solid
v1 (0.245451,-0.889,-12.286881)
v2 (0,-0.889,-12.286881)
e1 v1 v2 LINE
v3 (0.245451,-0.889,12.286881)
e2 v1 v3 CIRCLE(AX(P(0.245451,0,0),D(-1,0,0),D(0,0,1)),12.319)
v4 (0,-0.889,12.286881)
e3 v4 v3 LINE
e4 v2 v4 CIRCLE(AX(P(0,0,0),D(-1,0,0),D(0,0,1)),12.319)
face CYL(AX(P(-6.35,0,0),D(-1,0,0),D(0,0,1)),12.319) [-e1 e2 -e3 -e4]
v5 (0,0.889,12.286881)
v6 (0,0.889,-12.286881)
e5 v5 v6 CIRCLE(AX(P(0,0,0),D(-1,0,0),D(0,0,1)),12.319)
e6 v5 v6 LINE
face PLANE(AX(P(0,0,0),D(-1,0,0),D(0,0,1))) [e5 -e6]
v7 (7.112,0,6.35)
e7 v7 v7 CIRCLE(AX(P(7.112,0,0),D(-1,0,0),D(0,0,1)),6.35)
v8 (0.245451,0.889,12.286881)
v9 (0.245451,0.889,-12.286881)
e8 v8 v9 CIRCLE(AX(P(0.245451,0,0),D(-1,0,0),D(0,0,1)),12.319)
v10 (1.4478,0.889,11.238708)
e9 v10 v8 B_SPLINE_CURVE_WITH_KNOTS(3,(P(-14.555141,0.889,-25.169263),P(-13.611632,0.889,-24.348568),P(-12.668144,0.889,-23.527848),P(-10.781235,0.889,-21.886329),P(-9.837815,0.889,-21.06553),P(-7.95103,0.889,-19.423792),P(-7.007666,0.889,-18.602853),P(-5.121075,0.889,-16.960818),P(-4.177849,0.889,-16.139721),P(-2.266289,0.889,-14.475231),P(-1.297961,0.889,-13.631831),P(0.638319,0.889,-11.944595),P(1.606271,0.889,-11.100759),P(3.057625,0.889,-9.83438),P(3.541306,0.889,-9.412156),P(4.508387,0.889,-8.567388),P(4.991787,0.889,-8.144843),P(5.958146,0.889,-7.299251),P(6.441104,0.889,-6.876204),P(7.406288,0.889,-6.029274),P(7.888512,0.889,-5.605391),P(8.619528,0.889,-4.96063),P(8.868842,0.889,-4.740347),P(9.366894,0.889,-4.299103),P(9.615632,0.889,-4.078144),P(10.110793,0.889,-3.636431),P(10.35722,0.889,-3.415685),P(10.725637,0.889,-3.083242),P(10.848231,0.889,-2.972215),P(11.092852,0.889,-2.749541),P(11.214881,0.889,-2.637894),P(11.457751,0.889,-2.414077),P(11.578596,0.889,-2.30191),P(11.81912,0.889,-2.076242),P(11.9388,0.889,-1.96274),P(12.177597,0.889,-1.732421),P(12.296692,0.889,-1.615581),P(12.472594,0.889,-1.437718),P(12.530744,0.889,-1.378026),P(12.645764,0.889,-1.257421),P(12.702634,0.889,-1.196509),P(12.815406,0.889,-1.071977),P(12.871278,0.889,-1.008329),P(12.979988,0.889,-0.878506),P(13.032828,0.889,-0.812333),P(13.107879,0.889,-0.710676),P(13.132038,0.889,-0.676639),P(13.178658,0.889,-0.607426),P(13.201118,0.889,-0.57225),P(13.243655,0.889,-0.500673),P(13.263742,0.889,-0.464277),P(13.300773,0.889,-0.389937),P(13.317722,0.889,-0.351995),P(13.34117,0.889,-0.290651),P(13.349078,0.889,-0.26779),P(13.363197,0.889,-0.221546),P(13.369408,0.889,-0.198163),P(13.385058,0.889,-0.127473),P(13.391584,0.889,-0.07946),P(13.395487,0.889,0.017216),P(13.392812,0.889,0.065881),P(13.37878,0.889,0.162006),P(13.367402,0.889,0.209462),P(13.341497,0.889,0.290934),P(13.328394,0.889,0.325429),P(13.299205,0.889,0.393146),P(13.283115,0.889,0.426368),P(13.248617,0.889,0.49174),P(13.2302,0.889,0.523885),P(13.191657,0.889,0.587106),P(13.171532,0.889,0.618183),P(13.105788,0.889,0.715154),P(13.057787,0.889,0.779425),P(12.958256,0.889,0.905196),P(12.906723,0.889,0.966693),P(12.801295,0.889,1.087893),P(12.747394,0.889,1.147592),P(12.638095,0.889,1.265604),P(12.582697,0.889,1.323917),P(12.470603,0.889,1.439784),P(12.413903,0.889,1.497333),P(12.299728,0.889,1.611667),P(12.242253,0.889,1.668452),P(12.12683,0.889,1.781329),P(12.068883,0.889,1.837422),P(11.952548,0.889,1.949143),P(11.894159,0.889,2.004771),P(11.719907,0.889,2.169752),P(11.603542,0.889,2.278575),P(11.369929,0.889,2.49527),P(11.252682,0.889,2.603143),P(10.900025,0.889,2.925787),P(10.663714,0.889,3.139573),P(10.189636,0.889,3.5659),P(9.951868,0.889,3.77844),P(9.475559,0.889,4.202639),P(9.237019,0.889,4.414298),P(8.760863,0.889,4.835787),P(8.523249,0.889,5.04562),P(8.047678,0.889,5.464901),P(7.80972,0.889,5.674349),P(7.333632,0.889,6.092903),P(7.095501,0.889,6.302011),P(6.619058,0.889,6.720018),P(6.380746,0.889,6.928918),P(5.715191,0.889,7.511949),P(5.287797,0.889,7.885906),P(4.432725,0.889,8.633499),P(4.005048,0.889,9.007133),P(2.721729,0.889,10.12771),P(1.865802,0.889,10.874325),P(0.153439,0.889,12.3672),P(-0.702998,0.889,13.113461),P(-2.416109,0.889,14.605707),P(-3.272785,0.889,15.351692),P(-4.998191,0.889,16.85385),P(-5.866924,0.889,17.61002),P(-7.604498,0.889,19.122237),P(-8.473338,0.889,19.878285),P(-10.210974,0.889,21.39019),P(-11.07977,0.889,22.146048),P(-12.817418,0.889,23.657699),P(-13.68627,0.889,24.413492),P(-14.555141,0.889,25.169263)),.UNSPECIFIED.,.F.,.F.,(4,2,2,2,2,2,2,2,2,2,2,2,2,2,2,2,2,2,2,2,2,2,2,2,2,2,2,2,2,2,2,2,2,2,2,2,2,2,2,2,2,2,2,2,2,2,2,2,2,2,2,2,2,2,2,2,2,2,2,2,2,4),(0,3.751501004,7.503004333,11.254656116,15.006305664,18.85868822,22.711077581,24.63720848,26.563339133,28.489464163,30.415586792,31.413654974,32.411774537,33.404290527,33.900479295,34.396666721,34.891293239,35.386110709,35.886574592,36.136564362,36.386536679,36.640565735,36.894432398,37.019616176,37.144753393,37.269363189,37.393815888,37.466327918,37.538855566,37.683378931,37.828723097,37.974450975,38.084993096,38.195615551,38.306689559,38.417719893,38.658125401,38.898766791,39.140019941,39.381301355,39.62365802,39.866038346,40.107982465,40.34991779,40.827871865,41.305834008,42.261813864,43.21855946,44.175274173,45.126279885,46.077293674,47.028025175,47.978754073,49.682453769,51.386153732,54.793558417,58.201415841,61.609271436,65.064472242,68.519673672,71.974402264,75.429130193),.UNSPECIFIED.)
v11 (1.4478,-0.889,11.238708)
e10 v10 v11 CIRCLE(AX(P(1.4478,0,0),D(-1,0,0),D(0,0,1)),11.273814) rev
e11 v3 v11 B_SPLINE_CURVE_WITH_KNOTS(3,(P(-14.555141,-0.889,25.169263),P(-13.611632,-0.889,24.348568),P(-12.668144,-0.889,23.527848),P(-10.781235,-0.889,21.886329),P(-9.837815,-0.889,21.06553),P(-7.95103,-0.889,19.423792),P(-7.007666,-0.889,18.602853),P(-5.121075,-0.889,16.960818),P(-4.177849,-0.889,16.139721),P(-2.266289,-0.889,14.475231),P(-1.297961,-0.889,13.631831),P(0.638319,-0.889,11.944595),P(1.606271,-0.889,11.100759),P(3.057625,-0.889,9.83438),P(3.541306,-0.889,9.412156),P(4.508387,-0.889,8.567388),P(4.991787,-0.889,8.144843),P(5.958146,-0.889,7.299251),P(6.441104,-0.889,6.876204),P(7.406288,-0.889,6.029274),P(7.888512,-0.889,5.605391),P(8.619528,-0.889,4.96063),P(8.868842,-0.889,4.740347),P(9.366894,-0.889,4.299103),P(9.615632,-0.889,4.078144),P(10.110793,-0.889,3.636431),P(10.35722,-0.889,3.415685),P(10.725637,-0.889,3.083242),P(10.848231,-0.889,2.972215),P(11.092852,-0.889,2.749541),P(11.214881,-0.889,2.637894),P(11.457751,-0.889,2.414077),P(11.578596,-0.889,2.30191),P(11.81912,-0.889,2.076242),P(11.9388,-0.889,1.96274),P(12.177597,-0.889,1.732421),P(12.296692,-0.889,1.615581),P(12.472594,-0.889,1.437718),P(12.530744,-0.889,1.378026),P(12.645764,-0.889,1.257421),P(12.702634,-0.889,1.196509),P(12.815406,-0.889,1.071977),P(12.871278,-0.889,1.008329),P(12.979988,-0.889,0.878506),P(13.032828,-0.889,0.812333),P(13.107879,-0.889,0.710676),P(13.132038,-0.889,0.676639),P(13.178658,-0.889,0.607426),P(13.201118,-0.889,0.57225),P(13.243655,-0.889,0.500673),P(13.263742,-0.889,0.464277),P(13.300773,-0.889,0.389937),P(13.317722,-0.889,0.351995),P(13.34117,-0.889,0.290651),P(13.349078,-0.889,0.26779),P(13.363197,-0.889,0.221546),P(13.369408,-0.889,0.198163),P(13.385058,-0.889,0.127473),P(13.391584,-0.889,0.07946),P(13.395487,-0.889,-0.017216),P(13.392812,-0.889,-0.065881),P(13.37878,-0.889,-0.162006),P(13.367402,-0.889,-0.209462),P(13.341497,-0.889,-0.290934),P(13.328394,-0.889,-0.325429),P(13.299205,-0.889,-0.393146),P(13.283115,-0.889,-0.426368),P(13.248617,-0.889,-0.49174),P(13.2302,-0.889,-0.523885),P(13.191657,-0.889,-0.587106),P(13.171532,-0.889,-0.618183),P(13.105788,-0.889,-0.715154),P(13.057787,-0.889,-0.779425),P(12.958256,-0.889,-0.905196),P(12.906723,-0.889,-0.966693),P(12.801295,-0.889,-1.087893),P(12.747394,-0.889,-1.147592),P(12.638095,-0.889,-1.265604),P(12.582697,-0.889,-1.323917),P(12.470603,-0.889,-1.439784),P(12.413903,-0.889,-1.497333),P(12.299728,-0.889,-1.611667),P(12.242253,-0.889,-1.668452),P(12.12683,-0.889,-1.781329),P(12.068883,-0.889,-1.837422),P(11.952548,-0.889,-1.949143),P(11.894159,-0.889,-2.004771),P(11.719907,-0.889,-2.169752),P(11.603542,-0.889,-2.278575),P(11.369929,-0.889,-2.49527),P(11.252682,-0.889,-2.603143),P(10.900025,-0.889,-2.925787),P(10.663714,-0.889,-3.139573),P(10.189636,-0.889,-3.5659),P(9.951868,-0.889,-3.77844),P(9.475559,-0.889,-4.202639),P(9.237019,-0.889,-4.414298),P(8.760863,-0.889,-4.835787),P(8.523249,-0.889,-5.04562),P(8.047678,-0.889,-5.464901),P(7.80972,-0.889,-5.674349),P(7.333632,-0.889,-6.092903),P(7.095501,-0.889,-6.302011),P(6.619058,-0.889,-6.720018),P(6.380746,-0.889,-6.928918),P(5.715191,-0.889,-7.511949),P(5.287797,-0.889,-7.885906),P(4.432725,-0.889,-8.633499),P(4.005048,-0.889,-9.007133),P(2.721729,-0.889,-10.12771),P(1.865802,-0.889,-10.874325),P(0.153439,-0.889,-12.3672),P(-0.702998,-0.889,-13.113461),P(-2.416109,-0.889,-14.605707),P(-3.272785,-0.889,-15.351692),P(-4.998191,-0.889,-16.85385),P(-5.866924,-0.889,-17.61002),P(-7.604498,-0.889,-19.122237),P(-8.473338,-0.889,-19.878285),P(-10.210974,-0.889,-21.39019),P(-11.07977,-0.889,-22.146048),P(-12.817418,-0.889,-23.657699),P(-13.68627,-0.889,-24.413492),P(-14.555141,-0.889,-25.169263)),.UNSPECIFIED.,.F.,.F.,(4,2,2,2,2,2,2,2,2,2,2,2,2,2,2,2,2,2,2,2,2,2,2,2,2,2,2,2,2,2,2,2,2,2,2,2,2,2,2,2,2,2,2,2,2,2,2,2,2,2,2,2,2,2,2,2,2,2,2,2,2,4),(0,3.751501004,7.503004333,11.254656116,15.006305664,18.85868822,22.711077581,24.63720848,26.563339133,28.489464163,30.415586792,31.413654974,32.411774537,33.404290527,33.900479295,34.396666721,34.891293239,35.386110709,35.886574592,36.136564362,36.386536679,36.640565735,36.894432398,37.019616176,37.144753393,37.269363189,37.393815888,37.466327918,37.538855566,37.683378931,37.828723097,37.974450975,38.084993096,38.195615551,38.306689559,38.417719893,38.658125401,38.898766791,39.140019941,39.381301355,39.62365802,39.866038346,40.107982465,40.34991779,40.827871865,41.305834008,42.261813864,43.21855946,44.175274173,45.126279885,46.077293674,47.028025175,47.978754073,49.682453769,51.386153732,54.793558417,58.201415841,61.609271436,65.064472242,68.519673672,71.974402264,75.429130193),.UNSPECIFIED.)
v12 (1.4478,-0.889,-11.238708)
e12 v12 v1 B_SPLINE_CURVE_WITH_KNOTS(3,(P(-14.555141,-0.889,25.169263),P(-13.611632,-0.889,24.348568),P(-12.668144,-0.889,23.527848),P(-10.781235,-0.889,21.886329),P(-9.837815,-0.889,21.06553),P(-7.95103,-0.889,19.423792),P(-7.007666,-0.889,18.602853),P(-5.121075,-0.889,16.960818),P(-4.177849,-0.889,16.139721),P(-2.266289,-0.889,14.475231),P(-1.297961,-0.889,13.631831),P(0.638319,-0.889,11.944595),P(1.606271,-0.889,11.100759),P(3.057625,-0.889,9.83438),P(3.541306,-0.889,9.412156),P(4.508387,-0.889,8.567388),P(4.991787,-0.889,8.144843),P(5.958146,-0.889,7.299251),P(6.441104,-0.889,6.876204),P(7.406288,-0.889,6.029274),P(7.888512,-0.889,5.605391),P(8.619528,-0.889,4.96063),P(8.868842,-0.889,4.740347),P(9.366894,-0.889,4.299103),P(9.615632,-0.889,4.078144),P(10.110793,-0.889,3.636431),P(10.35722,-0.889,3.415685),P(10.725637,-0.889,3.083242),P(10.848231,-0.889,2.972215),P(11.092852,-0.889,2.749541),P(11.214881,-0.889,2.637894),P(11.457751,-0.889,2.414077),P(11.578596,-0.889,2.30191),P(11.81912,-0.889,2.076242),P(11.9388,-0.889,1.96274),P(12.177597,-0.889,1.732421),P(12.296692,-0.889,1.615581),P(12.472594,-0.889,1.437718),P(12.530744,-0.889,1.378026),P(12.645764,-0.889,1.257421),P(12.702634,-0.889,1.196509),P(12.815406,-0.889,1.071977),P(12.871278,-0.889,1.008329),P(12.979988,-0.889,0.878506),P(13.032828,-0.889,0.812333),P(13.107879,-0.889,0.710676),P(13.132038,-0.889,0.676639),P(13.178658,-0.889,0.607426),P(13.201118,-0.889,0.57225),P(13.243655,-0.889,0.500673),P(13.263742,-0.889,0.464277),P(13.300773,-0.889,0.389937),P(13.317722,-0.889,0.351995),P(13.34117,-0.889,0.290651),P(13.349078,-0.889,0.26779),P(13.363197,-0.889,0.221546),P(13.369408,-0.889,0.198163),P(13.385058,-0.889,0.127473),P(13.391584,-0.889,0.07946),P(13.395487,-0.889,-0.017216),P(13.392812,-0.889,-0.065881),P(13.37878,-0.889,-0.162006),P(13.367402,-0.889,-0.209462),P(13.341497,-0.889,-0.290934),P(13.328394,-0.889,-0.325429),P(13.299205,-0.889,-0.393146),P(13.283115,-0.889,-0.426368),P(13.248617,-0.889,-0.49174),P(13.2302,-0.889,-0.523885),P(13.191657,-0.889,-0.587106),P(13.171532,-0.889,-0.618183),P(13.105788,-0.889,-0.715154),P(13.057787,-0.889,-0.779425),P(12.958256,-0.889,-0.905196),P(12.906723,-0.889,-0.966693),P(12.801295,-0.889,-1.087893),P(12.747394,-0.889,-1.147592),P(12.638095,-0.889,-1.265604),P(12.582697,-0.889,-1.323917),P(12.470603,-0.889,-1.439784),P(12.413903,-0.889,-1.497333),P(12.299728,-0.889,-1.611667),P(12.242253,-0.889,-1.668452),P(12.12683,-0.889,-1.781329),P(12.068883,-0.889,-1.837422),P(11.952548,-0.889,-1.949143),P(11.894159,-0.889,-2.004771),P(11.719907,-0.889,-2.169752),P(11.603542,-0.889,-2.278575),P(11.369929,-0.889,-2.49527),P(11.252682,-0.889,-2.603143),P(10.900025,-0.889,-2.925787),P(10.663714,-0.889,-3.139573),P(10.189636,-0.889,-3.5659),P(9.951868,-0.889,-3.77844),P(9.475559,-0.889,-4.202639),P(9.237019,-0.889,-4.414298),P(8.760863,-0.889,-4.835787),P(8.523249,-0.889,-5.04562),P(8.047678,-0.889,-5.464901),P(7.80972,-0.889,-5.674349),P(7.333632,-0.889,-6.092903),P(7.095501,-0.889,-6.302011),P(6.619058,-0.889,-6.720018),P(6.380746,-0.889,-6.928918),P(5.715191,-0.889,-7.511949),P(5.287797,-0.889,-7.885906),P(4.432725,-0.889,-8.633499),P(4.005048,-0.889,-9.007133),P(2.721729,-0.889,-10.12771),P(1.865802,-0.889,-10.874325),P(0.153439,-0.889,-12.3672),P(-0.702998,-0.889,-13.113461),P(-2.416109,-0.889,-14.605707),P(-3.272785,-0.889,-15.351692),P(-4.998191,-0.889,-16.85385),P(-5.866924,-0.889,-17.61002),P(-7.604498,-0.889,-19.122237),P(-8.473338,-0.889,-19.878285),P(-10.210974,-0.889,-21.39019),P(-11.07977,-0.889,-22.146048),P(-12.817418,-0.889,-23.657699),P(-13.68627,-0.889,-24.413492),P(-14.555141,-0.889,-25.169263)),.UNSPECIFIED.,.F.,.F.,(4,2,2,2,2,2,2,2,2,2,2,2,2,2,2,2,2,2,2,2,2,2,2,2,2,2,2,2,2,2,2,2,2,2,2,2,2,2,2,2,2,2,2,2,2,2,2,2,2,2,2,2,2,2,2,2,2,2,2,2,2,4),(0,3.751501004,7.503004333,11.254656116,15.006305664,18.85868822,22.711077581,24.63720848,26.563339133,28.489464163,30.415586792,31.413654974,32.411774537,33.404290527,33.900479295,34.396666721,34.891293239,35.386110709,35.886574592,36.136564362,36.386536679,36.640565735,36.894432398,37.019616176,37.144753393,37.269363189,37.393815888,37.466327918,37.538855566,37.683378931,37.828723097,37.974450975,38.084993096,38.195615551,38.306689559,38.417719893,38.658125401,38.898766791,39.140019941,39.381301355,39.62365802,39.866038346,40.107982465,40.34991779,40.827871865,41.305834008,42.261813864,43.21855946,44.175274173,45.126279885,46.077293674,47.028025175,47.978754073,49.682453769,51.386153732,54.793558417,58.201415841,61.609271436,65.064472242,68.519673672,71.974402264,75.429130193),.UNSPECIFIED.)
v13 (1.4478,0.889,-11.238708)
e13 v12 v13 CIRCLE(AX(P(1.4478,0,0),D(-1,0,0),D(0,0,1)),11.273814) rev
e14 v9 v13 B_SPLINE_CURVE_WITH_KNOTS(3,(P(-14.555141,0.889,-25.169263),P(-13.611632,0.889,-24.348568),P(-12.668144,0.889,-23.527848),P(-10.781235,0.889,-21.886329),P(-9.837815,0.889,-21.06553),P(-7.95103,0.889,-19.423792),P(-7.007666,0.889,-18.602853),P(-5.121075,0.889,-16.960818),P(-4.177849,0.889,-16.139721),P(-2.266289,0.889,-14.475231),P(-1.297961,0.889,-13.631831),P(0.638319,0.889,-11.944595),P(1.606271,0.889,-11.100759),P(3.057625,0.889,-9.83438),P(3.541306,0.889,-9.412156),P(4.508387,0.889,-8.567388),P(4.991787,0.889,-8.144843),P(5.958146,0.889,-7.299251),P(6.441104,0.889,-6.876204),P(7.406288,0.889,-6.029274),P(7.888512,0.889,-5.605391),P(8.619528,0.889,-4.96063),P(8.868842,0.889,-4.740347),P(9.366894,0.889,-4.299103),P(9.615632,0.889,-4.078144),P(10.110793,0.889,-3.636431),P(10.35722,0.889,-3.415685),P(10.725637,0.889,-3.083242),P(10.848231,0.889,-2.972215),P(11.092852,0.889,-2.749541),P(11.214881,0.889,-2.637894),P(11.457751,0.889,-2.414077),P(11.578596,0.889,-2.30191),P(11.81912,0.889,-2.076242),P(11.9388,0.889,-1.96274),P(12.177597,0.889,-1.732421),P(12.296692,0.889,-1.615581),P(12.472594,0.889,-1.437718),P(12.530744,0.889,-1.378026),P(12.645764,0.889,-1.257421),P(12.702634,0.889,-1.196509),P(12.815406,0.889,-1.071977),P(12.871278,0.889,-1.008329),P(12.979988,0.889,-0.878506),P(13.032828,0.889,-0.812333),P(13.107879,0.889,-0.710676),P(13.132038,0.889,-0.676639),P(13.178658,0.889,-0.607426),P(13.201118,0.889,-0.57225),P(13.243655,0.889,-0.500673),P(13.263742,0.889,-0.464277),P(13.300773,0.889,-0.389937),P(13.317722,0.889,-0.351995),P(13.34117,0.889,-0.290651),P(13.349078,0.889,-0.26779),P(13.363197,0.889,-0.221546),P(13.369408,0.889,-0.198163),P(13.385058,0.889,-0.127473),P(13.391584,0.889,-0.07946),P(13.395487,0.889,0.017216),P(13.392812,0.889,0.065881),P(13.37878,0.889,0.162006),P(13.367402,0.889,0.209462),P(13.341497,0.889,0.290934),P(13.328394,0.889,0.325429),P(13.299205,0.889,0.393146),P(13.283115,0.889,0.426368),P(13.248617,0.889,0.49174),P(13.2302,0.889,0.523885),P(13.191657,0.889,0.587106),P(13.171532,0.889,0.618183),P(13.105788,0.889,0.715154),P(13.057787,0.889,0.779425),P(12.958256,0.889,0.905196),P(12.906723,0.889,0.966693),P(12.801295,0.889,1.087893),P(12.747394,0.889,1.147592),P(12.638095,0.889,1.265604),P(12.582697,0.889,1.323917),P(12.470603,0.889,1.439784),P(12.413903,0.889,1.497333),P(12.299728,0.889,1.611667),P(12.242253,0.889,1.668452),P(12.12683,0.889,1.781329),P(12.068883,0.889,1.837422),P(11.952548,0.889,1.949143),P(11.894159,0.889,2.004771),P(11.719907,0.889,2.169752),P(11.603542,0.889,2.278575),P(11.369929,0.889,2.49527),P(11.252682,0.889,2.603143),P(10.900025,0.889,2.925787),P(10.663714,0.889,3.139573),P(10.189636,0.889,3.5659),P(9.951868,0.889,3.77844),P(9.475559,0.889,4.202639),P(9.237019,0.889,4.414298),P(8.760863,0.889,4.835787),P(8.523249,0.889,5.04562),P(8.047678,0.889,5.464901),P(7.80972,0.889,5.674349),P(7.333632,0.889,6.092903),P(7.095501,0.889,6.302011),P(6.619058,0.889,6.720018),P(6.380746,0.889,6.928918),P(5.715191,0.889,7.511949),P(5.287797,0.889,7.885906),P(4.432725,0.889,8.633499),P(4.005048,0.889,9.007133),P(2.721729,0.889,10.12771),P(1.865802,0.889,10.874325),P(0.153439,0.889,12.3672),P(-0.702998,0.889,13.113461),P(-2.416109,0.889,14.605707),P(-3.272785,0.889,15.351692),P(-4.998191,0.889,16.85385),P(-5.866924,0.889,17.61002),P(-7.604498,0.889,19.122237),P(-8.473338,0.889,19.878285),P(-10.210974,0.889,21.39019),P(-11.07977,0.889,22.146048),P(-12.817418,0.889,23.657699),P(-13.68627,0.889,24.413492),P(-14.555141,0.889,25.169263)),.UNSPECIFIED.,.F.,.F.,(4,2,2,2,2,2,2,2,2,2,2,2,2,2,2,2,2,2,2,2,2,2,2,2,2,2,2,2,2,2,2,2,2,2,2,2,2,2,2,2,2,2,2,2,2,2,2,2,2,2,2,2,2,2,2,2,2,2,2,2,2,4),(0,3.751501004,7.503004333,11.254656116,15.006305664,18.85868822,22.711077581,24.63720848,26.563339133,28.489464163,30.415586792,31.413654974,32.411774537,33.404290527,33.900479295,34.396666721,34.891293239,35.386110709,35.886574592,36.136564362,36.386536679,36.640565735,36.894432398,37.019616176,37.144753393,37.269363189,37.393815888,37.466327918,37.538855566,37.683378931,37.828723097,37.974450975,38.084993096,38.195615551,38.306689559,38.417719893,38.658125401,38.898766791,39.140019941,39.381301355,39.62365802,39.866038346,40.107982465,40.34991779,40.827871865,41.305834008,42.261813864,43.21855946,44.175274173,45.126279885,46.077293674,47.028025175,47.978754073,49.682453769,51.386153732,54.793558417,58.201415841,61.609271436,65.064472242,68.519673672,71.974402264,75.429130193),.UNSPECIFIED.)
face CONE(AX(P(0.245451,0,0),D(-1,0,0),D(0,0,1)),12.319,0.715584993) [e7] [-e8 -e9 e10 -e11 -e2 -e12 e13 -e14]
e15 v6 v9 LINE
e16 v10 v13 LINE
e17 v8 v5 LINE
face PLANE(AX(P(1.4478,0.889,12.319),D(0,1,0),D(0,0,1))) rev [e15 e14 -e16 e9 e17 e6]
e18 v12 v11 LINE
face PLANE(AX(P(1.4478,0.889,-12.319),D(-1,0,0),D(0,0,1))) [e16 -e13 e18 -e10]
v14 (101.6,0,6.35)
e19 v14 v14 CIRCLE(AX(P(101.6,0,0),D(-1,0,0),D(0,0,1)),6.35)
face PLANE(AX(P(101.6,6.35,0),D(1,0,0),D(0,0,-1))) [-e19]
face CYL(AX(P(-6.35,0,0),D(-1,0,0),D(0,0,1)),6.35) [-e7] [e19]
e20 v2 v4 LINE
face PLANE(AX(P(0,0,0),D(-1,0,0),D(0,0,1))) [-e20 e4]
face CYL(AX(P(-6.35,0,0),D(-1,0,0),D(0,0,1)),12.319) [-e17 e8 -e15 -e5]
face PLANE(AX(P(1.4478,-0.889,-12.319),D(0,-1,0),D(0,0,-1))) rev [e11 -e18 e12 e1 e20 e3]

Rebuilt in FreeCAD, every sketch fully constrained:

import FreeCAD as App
import Part
import Sketcher
Q = App.Units.Quantity


def add_polygon(sketch, points):
    """Adds a closed chain of lines whose ends are joined by coincident constraints."""
    first, n = sketch.GeometryCount, len(points)
    for a, b in zip(points, points[1:] + points[:1]):
        sketch.addGeometry(Part.LineSegment(App.Vector(*a, 0), App.Vector(*b, 0)), False)
    for i in range(n):
        sketch.addConstraint(Sketcher.Constraint("Coincident", first + i, 2, first + (i + 1) % n, 1))

doc = App.newDocument("Part")
body = doc.addObject("PartDesign::Body", "Body")

# Sketch on XY plane
sketch1 = doc.addObject("Sketcher::SketchObject", "Sketch")
body.addObject(sketch1)
sketch1.AttachmentSupport = (doc.XY_Plane, [""])
sketch1.MapMode = "FlatFace"
add_polygon(sketch1, [(0, 12.319), (0, 0), (101.6, 0), (101.6, 6.35), (7.112, 6.35), (0.245451, 12.319)])  # lines 0-5
sketch1.addConstraint([
    Sketcher.Constraint("Vertical", 0),
    Sketcher.Constraint("Horizontal", 1),
    Sketcher.Constraint("Vertical", 2),
    Sketcher.Constraint("Horizontal", 3),
    Sketcher.Constraint("Horizontal", 5),
    Sketcher.Constraint("Coincident", 0, 2, -1, 1),
    Sketcher.Constraint("DistanceX", 1, 1, 1, 2, Q("4 in")),
    Sketcher.Constraint("Angle", 4, Q("139 deg")),
    Sketcher.Constraint("DistanceX", 3, 2, 3, 1, Q("3.72 in")),
    Sketcher.Constraint("DistanceY", 2, 1, 2, 2, Q("0.25 in")),
    Sketcher.Constraint("DistanceY", 0, 2, 0, 1, Q("0.485 in")),
])
revolution = doc.addObject("PartDesign::Revolution", "Revolution")
body.addObject(revolution)
revolution.Profile = sketch1
revolution.ReferenceAxis = (sketch1, ["H_Axis"])
revolution.Angle = 360

# Sketch on YZ plane
sketch2 = doc.addObject("Sketcher::SketchObject", "Sketch001")
body.addObject(sketch2)
sketch2.AttachmentSupport = (doc.YZ_Plane, [""])
sketch2.MapMode = "FlatFace"
add_polygon(sketch2, [(0.889, -12.319), (-0.889, -12.319), (-0.889, 12.319), (0.889, 12.319)])  # lines 0-3
sketch2.addConstraint([
    Sketcher.Constraint("Horizontal", 0),
    Sketcher.Constraint("Vertical", 1),
    Sketcher.Constraint("Horizontal", 2),
    Sketcher.Constraint("Vertical", 3),
    Sketcher.Constraint("Symmetric", 0, 2, 2, 2, -1, 1),
    Sketcher.Constraint("DistanceX", 0, 2, 0, 1, Q("0.07 in")),
    Sketcher.Constraint("DistanceY", 1, 1, 1, 2, Q("0.97 in")),
])
pocket1 = doc.addObject("PartDesign::Pocket", "Pocket")
body.addObject(pocket1)
pocket1.Profile = sketch2
pocket1.Length = Q("0.057 in")
pocket1.Reversed = True

doc.recompute()
